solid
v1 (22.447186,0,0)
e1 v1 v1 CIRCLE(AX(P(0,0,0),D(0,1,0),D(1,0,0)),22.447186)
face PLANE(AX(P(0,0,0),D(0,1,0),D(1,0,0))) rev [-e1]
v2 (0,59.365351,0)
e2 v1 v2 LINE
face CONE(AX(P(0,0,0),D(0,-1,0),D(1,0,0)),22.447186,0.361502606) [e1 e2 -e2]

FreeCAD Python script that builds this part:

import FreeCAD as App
import Part
import Sketcher
from FreeCAD import Vector
Q = App.Units.Quantity


def add_polygon(sketch, points):
    """Adds a closed chain of lines whose ends are joined by coincident constraints."""
    first, n = sketch.GeometryCount, len(points)
    for a, b in zip(points, points[1:] + points[:1]):
        sketch.addGeometry(Part.LineSegment(App.Vector(*a, 0), App.Vector(*b, 0)), False)
    for i in range(n):
        sketch.addConstraint(Sketcher.Constraint("Coincident", first + i, 2, first + (i + 1) % n, 1))

doc = App.newDocument("Part")
body = doc.addObject("PartDesign::Body", "Body")

sketch1 = body.newObject("Sketcher::SketchObject", "Sketch")
sketch1.AttachmentSupport = (doc.getObject("XY_Plane"), [""])
sketch1.MapMode = "FlatFace"
add_polygon(sketch1, [(0, 59), (0, 0), (22, 0)])
sketch1.addConstraint(Sketcher.Constraint("Vertical", 0))
sketch1.addConstraint(Sketcher.Constraint("Horizontal", 1))
sketch1.addConstraint(Sketcher.Constraint("Coincident", 0, 2, -1, 1))
sketch1.addConstraint(Sketcher.Constraint("DistanceY", 0, 2, 0, 1, Q("59.365351 mm")))
sketch1.addConstraint(Sketcher.Constraint("Distance", 2, Q("63.46748 mm")))
revolution = body.newObject("PartDesign::Revolution", "Revolution")
revolution.Profile = sketch1
revolution.ReferenceAxis = (sketch1, ["V_Axis"])
revolution.Angle = 360

doc.recompute()
